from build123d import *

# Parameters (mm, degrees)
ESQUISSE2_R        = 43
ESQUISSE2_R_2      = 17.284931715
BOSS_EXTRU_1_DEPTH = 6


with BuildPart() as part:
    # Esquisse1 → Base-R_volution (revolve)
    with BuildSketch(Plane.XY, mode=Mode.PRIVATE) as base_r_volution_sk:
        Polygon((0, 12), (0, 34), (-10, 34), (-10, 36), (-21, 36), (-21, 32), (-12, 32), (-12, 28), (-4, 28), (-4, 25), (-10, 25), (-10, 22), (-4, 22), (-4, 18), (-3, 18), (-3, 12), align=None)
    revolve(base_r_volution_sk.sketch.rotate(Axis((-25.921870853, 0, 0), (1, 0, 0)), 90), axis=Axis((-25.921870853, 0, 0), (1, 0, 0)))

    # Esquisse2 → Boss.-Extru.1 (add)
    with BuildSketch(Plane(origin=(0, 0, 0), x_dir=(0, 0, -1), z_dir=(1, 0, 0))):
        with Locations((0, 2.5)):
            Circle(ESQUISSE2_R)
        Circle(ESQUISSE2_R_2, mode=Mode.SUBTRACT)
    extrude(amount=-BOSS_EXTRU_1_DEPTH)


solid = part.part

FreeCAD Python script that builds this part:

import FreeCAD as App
import Part
import Sketcher
Q = App.Units.Quantity

doc = App.newDocument("Part")
body = doc.addObject("PartDesign::Body", "Body")

# Sketch on XY plane
sketch1 = body.newObject("Sketcher::SketchObject", "Sketch")
sketch1.AttachmentSupport = (doc.getObject("XY_Plane"), [""])
sketch1.MapMode = "FlatFace"
sketch1.addGeometry([
    Part.LineSegment(App.Vector(0, 12, 0), App.Vector(0, 34, 0)),  # 0
    Part.LineSegment(App.Vector(0, 34, 0), App.Vector(-10, 34, 0)),  # 1
    Part.LineSegment(App.Vector(-10, 34, 0), App.Vector(-10, 36, 0)),  # 2
    Part.LineSegment(App.Vector(-10, 36, 0), App.Vector(-21, 36, 0)),  # 3
    Part.LineSegment(App.Vector(-21, 36, 0), App.Vector(-21, 32, 0)),  # 4
    Part.LineSegment(App.Vector(-21, 32, 0), App.Vector(-12, 32, 0)),  # 5
    Part.LineSegment(App.Vector(-12, 32, 0), App.Vector(-12, 28, 0)),  # 6
    Part.LineSegment(App.Vector(-12, 28, 0), App.Vector(-4, 28, 0)),  # 7
    Part.LineSegment(App.Vector(-4, 28, 0), App.Vector(-4, 25, 0)),  # 8
    Part.LineSegment(App.Vector(-4, 25, 0), App.Vector(-10, 25, 0)),  # 9
    Part.LineSegment(App.Vector(-10, 25, 0), App.Vector(-10, 22, 0)),  # 10
    Part.LineSegment(App.Vector(-10, 22, 0), App.Vector(-4, 22, 0)),  # 11
    Part.LineSegment(App.Vector(-4, 22, 0), App.Vector(-4, 18, 0)),  # 12
    Part.LineSegment(App.Vector(-4, 18, 0), App.Vector(-3, 18, 0)),  # 13
    Part.LineSegment(App.Vector(-3, 18, 0), App.Vector(-3, 12, 0)),  # 14
    Part.LineSegment(App.Vector(-3, 12, 0), App.Vector(0, 12, 0)),  # 15
], False)
sketch1.addConstraint([
    Sketcher.Constraint("Coincident", 0, 2, 1, 1),
    Sketcher.Constraint("Coincident", 1, 2, 2, 1),
    Sketcher.Constraint("Coincident", 2, 2, 3, 1),
    Sketcher.Constraint("Coincident", 3, 2, 4, 1),
    Sketcher.Constraint("Coincident", 4, 2, 5, 1),
    Sketcher.Constraint("Coincident", 5, 2, 6, 1),
    Sketcher.Constraint("Coincident", 6, 2, 7, 1),
    Sketcher.Constraint("Coincident", 7, 2, 8, 1),
    Sketcher.Constraint("Coincident", 8, 2, 9, 1),
    Sketcher.Constraint("Coincident", 9, 2, 10, 1),
    Sketcher.Constraint("Coincident", 10, 2, 11, 1),
    Sketcher.Constraint("Coincident", 11, 2, 12, 1),
    Sketcher.Constraint("Coincident", 12, 2, 13, 1),
    Sketcher.Constraint("Coincident", 13, 2, 14, 1),
    Sketcher.Constraint("Coincident", 14, 2, 15, 1),
    Sketcher.Constraint("Coincident", 15, 2, 0, 1),
    Sketcher.Constraint("Vertical", 0),
    Sketcher.Constraint("Horizontal", 1),
    Sketcher.Constraint("Vertical", 2),
    Sketcher.Constraint("Horizontal", 3),
    Sketcher.Constraint("Vertical", 4),
    Sketcher.Constraint("Horizontal", 5),
    Sketcher.Constraint("Vertical", 6),
    Sketcher.Constraint("Horizontal", 7),
    Sketcher.Constraint("Vertical", 8),
    Sketcher.Constraint("Horizontal", 9),
    Sketcher.Constraint("Vertical", 10),
    Sketcher.Constraint("Horizontal", 11),
    Sketcher.Constraint("Vertical", 12),
    Sketcher.Constraint("Horizontal", 13),
    Sketcher.Constraint("Vertical", 14),
    Sketcher.Constraint("Horizontal", 15),
    Sketcher.Constraint("PointOnObject", 0, 2, -2),
    Sketcher.Constraint("Vertical", 2, 2, 9, 2),
    Sketcher.Constraint("Vertical", 8, 2, 11, 2),
    Sketcher.Constraint("Equal", 4, 6),
    Sketcher.Constraint("Equal", 15, 8),
    Sketcher.Constraint("Equal", 8, 10),
    Sketcher.Constraint("Equal", 6, 12),
    Sketcher.Constraint("Equal", 11, 14),
    Sketcher.Constraint("DistanceX", 1, 2, 1, 1, Q("10 mm")),
    Sketcher.Constraint("DistanceX", 3, 2, 3, 1, Q("11 mm")),
    Sketcher.Constraint("DistanceX", 5, 1, 5, 2, Q("9 mm")),
    Sketcher.Constraint("DistanceX", 7, 1, 7, 2, Q("8 mm")),
    Sketcher.Constraint("DistanceX", 13, 1, 13, 2, Q("1 mm")),
    Sketcher.Constraint("DistanceY", 0, 1, 0, 2, Q("22 mm")),
    Sketcher.Constraint("DistanceY", 2, 1, 2, 2, Q("2 mm")),
    Sketcher.Constraint("DistanceY", -1, 1, 0, 2, Q("34 mm")),
])
revolution = body.newObject("PartDesign::Revolution", "Revolution")
revolution.Profile = sketch1
revolution.ReferenceAxis = (sketch1, ["H_Axis"])
revolution.Angle = 360

# Sketch on YZ plane
sketch2 = body.newObject("Sketcher::SketchObject", "Sketch001")
sketch2.AttachmentSupport = (doc.getObject("YZ_Plane"), [""])
sketch2.MapMode = "FlatFace"
sketch2.addGeometry([
    Part.Circle(App.Vector(2, 0, 0), App.Vector(0, 0, 1), 43),
    Part.Circle(App.Vector(0, 0, 0), App.Vector(0, 0, 1), 17),
], False)
sketch2.addConstraint([
    Sketcher.Constraint("Coincident", 1, 3, -1, 1),
    Sketcher.Constraint("PointOnObject", 0, 3, -1),
    Sketcher.Constraint("Diameter", 0, Q("86 mm")),
    Sketcher.Constraint("DistanceX", -1, 1, 0, 3, Q("2.5 mm")),
    Sketcher.Constraint("Diameter", 1, Q("34.569863 mm")),
])
pad1 = body.newObject("PartDesign::Pad", "Pad")
pad1.Profile = sketch2
pad1.Length = 6
pad1.Reversed = True

doc.recompute()
